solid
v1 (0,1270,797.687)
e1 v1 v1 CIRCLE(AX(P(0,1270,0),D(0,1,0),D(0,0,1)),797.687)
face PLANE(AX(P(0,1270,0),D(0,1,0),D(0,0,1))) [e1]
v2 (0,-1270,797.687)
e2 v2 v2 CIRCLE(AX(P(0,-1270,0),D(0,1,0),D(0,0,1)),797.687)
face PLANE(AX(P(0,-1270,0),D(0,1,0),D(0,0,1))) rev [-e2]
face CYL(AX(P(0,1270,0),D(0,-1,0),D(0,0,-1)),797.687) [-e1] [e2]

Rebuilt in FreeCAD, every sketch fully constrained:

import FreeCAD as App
import Part
import Sketcher
Q = App.Units.Quantity

doc = App.newDocument("Part")
body = doc.addObject("PartDesign::Body", "Body")

# Sketch on XZ plane
sketch1 = body.newObject("Sketcher::SketchObject", "Sketch")
sketch1.AttachmentSupport = (doc.getObject("XZ_Plane"), [""])
sketch1.MapMode = "FlatFace"
sketch1.addGeometry(Part.Circle(App.Vector(0, 0, 0), App.Vector(0, 0, 1), 798), False)
sketch1.addConstraint(Sketcher.Constraint("Coincident", 0, 3, -1, 1))
sketch1.addConstraint(Sketcher.Constraint("Diameter", 0, Q("62.81 in")))
pad1 = body.newObject("PartDesign::Pad", "Pad")
pad1.Profile = sketch1
pad1.Length = Q("100 in")
pad1.Midplane = True

doc.recompute()
